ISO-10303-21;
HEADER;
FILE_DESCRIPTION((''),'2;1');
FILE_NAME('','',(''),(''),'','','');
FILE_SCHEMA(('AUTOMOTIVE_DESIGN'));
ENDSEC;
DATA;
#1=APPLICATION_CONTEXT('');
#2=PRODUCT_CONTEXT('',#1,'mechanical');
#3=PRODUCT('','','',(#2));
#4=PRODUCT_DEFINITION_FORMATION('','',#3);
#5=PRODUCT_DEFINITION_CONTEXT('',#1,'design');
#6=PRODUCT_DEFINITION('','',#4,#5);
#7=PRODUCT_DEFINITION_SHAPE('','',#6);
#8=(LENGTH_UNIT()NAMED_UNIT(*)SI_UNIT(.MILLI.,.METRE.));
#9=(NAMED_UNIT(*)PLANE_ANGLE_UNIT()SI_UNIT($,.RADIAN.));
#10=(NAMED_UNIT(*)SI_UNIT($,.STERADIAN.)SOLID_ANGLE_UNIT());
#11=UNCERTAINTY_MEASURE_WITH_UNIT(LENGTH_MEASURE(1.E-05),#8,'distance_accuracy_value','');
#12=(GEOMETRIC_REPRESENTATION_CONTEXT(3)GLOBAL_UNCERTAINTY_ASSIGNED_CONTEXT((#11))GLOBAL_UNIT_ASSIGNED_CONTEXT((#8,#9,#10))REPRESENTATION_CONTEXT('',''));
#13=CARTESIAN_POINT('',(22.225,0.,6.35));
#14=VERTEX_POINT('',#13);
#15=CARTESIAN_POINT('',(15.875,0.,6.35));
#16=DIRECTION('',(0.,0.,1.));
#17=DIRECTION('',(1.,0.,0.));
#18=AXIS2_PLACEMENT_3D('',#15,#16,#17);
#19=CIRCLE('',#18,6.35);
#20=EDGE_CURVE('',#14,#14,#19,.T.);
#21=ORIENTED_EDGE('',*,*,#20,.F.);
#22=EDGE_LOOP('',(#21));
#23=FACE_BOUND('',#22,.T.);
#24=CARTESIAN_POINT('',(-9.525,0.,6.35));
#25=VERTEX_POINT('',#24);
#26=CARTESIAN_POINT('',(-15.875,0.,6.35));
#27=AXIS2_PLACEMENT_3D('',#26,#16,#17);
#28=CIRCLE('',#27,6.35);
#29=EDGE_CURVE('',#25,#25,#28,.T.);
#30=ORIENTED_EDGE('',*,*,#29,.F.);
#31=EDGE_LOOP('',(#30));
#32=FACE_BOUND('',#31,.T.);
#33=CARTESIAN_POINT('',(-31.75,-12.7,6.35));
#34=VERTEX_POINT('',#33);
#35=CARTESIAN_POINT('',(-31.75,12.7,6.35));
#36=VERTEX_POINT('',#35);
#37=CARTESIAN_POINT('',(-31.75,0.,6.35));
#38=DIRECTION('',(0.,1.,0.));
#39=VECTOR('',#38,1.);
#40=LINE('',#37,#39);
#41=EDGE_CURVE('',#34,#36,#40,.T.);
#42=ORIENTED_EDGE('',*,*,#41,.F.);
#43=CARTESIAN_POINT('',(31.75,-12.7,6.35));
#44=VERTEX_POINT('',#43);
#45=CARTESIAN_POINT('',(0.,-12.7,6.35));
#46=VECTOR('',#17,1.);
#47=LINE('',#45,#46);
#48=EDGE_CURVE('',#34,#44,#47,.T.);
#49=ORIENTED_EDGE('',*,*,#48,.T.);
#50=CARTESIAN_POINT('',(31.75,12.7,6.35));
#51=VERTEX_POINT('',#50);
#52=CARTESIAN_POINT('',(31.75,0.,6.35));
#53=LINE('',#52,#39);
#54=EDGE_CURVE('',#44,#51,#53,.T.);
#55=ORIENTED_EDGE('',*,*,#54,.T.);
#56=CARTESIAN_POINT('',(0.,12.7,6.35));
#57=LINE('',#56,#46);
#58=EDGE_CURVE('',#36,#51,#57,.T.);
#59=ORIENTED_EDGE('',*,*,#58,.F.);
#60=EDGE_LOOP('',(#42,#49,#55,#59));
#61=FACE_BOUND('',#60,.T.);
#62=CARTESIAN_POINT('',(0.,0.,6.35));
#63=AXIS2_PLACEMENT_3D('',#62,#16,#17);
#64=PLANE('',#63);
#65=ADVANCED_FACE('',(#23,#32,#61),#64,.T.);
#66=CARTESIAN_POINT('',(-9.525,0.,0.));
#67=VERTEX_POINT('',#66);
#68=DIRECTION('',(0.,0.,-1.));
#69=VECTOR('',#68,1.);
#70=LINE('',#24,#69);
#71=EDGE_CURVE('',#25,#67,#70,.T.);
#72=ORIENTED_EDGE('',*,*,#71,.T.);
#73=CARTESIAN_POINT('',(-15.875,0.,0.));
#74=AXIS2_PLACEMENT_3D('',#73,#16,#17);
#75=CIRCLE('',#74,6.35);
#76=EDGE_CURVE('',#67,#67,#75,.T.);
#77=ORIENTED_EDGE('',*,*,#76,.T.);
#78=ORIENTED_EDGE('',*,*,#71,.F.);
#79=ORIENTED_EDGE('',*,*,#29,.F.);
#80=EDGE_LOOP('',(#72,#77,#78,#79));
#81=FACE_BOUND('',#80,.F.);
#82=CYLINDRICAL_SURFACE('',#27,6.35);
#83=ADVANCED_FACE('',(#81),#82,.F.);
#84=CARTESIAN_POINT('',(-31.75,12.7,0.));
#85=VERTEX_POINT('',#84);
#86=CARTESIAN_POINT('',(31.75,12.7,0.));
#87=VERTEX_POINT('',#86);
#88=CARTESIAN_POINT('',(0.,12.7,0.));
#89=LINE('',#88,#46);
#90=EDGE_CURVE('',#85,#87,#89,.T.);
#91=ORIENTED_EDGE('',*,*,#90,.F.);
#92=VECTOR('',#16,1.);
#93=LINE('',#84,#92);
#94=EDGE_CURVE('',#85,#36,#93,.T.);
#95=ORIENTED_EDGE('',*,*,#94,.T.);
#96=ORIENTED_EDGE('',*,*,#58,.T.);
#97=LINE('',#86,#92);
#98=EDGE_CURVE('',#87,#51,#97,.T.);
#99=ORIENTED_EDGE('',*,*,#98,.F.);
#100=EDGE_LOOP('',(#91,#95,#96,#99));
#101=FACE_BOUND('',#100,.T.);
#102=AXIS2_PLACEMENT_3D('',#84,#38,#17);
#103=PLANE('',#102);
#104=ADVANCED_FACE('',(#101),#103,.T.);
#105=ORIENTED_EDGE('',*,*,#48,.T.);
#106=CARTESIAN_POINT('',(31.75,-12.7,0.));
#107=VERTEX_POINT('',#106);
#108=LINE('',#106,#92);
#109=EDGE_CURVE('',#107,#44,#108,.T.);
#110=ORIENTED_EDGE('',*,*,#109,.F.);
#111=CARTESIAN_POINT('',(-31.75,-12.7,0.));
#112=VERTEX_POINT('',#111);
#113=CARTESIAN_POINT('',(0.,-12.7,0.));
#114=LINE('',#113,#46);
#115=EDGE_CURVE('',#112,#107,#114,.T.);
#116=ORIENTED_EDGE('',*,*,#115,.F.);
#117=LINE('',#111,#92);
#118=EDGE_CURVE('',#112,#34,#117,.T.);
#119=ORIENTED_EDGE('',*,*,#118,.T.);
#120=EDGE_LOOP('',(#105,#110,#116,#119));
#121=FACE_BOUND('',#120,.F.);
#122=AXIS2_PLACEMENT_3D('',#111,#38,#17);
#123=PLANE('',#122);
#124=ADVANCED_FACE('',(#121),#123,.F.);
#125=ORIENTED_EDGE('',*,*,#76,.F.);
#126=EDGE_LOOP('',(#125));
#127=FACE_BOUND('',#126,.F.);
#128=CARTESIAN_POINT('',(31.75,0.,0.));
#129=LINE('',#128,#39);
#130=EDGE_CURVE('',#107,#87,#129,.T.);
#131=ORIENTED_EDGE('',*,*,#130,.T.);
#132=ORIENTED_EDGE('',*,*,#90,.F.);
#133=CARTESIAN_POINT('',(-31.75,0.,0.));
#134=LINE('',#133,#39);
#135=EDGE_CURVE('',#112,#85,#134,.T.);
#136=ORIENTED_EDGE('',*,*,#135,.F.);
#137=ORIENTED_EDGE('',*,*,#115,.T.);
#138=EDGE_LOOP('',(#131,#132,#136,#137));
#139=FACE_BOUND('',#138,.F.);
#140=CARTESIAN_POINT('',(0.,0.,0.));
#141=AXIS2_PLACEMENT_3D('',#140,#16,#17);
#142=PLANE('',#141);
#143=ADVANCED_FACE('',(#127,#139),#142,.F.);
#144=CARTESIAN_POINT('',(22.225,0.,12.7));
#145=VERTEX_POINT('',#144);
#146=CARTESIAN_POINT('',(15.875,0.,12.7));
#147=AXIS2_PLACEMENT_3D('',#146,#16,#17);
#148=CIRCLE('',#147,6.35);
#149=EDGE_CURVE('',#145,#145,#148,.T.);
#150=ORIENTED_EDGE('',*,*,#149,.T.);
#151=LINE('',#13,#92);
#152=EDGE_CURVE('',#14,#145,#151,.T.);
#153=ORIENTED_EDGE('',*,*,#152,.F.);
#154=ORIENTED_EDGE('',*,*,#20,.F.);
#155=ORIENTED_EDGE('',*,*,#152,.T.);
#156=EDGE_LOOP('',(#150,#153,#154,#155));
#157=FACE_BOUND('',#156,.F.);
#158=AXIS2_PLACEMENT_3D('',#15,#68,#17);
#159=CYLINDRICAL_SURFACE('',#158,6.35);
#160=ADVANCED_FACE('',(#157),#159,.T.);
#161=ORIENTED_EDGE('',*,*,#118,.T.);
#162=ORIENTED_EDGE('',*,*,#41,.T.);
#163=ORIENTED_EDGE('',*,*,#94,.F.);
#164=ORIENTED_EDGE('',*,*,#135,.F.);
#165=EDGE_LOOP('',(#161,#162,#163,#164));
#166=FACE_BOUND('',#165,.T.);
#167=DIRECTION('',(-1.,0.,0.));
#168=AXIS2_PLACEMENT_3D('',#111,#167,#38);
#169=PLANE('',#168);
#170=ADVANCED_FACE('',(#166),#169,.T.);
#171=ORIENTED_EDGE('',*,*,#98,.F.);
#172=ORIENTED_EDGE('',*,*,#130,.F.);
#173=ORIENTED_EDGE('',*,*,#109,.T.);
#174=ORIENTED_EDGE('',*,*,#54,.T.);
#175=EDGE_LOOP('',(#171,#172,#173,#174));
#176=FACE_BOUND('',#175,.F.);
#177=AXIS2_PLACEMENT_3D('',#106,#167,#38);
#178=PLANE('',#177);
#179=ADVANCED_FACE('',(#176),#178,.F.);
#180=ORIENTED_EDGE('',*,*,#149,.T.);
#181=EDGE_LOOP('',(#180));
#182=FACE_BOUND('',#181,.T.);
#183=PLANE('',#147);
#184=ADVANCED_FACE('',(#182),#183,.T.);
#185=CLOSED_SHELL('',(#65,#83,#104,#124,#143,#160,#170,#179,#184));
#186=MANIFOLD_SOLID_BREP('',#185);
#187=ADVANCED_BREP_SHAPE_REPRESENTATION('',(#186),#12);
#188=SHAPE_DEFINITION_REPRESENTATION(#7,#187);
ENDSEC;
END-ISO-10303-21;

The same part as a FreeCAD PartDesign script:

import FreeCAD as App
import Part
import Sketcher

V = App.Vector
Q = App.Units.Quantity

doc = App.newDocument("Part")
params = doc.addObject("Spreadsheet::Sheet", "Params")
for row, (alias, value) in enumerate([
    ("sketch1_height", "1 in"),
    ("sketch1_width", "2.5 in"),
    ("pad1_length", "0.25 in"),
    ("sketch2_diameter", "0.5 in"),
    ("sketch3_diameter", "0.5 in"),
    ("pad2_length", "0.25 in"),
], start=1):
    params.set(f"A{row}", alias)
    params.set(f"B{row}", "=" + value)
    params.setAlias(f"B{row}", alias)

body = doc.addObject("PartDesign::Body", "Body")

# Sketch on XY plane
sketch1 = body.newObject("Sketcher::SketchObject", "Sketch")
sketch1.AttachmentSupport = (doc.getObject("XY_Plane"), [""])
sketch1.MapMode = "FlatFace"
sketch1.addGeometry([
    Part.LineSegment(V(-31.75, 12.7, 0), V(-31.75, -12.7, 0)),
    Part.LineSegment(V(-31.75, -12.7, 0), V(31.75, -12.7, 0)),
    Part.LineSegment(V(31.75, -12.7, 0), V(31.75, 12.7, 0)),
    Part.LineSegment(V(31.75, 12.7, 0), V(-31.75, 12.7, 0)),
], False)
sketch1.addConstraint([
    Sketcher.Constraint("Coincident", 0, 2, 1, 1),
    Sketcher.Constraint("Coincident", 1, 2, 2, 1),
    Sketcher.Constraint("Coincident", 2, 2, 3, 1),
    Sketcher.Constraint("Coincident", 3, 2, 0, 1),
    Sketcher.Constraint("Vertical", 0),
    Sketcher.Constraint("Horizontal", 1),
    Sketcher.Constraint("Vertical", 2),
    Sketcher.Constraint("Horizontal", 3),
    Sketcher.Constraint("Symmetric", 0, 2, 2, 2, -1, 1),
    Sketcher.Constraint("DistanceY", 0, 2, 0, 1, Q("1 in")),
    Sketcher.Constraint("DistanceX", 1, 1, 1, 2, Q("2.5 in")),
])
sketch1.setExpression("Constraints[9]", "Params.sketch1_height")
sketch1.setExpression("Constraints[10]", "Params.sketch1_width")
pad1 = body.newObject("PartDesign::Pad", "Pad")
pad1.Profile = sketch1
pad1.setExpression("Length", "Params.pad1_length")

# Sketch on XY plane
sketch2 = body.newObject("Sketcher::SketchObject", "Sketch001")
sketch2.AttachmentSupport = (doc.getObject("XY_Plane"), [""])
sketch2.MapMode = "FlatFace"
sketch2.AttachmentOffset = App.Placement(V(0, 0, 0.25 * 25.4), App.Rotation())
sketch2.addGeometry(Part.Circle(V(-15.875, 0, 0), V(0, 0, 1), 6.35), False)
sketch2.addConstraint([
    Sketcher.Constraint("PointOnObject", 0, 3, -1),
    Sketcher.Constraint("Diameter", 0, Q("0.5 in")),
    Sketcher.Constraint("DistanceX", 0, 3, -1, 1, Q("0.625 in")),
])
sketch2.setExpression("Constraints[1]", "Params.sketch2_diameter")
pocket1 = body.newObject("PartDesign::Pocket", "Pocket")
pocket1.Profile = sketch2
pocket1.Type = "ThroughAll"

# Sketch on XY plane
sketch3 = body.newObject("Sketcher::SketchObject", "Sketch002")
sketch3.AttachmentSupport = (doc.getObject("XY_Plane"), [""])
sketch3.MapMode = "FlatFace"
sketch3.AttachmentOffset = App.Placement(V(0, 0, 0.25 * 25.4), App.Rotation())
sketch3.addGeometry(Part.Circle(V(15.875, 0, 0), V(0, 0, 1), 6.35), False)
sketch3.addConstraint([
    Sketcher.Constraint("PointOnObject", 0, 3, -1),
    Sketcher.Constraint("Diameter", 0, Q("0.5 in")),
    Sketcher.Constraint("DistanceX", -1, 1, 0, 3, Q("0.625 in")),
])
sketch3.setExpression("Constraints[1]", "Params.sketch3_diameter")
pad2 = body.newObject("PartDesign::Pad", "Pad001")
pad2.Profile = sketch3
pad2.setExpression("Length", "Params.pad2_length")

doc.recompute()
